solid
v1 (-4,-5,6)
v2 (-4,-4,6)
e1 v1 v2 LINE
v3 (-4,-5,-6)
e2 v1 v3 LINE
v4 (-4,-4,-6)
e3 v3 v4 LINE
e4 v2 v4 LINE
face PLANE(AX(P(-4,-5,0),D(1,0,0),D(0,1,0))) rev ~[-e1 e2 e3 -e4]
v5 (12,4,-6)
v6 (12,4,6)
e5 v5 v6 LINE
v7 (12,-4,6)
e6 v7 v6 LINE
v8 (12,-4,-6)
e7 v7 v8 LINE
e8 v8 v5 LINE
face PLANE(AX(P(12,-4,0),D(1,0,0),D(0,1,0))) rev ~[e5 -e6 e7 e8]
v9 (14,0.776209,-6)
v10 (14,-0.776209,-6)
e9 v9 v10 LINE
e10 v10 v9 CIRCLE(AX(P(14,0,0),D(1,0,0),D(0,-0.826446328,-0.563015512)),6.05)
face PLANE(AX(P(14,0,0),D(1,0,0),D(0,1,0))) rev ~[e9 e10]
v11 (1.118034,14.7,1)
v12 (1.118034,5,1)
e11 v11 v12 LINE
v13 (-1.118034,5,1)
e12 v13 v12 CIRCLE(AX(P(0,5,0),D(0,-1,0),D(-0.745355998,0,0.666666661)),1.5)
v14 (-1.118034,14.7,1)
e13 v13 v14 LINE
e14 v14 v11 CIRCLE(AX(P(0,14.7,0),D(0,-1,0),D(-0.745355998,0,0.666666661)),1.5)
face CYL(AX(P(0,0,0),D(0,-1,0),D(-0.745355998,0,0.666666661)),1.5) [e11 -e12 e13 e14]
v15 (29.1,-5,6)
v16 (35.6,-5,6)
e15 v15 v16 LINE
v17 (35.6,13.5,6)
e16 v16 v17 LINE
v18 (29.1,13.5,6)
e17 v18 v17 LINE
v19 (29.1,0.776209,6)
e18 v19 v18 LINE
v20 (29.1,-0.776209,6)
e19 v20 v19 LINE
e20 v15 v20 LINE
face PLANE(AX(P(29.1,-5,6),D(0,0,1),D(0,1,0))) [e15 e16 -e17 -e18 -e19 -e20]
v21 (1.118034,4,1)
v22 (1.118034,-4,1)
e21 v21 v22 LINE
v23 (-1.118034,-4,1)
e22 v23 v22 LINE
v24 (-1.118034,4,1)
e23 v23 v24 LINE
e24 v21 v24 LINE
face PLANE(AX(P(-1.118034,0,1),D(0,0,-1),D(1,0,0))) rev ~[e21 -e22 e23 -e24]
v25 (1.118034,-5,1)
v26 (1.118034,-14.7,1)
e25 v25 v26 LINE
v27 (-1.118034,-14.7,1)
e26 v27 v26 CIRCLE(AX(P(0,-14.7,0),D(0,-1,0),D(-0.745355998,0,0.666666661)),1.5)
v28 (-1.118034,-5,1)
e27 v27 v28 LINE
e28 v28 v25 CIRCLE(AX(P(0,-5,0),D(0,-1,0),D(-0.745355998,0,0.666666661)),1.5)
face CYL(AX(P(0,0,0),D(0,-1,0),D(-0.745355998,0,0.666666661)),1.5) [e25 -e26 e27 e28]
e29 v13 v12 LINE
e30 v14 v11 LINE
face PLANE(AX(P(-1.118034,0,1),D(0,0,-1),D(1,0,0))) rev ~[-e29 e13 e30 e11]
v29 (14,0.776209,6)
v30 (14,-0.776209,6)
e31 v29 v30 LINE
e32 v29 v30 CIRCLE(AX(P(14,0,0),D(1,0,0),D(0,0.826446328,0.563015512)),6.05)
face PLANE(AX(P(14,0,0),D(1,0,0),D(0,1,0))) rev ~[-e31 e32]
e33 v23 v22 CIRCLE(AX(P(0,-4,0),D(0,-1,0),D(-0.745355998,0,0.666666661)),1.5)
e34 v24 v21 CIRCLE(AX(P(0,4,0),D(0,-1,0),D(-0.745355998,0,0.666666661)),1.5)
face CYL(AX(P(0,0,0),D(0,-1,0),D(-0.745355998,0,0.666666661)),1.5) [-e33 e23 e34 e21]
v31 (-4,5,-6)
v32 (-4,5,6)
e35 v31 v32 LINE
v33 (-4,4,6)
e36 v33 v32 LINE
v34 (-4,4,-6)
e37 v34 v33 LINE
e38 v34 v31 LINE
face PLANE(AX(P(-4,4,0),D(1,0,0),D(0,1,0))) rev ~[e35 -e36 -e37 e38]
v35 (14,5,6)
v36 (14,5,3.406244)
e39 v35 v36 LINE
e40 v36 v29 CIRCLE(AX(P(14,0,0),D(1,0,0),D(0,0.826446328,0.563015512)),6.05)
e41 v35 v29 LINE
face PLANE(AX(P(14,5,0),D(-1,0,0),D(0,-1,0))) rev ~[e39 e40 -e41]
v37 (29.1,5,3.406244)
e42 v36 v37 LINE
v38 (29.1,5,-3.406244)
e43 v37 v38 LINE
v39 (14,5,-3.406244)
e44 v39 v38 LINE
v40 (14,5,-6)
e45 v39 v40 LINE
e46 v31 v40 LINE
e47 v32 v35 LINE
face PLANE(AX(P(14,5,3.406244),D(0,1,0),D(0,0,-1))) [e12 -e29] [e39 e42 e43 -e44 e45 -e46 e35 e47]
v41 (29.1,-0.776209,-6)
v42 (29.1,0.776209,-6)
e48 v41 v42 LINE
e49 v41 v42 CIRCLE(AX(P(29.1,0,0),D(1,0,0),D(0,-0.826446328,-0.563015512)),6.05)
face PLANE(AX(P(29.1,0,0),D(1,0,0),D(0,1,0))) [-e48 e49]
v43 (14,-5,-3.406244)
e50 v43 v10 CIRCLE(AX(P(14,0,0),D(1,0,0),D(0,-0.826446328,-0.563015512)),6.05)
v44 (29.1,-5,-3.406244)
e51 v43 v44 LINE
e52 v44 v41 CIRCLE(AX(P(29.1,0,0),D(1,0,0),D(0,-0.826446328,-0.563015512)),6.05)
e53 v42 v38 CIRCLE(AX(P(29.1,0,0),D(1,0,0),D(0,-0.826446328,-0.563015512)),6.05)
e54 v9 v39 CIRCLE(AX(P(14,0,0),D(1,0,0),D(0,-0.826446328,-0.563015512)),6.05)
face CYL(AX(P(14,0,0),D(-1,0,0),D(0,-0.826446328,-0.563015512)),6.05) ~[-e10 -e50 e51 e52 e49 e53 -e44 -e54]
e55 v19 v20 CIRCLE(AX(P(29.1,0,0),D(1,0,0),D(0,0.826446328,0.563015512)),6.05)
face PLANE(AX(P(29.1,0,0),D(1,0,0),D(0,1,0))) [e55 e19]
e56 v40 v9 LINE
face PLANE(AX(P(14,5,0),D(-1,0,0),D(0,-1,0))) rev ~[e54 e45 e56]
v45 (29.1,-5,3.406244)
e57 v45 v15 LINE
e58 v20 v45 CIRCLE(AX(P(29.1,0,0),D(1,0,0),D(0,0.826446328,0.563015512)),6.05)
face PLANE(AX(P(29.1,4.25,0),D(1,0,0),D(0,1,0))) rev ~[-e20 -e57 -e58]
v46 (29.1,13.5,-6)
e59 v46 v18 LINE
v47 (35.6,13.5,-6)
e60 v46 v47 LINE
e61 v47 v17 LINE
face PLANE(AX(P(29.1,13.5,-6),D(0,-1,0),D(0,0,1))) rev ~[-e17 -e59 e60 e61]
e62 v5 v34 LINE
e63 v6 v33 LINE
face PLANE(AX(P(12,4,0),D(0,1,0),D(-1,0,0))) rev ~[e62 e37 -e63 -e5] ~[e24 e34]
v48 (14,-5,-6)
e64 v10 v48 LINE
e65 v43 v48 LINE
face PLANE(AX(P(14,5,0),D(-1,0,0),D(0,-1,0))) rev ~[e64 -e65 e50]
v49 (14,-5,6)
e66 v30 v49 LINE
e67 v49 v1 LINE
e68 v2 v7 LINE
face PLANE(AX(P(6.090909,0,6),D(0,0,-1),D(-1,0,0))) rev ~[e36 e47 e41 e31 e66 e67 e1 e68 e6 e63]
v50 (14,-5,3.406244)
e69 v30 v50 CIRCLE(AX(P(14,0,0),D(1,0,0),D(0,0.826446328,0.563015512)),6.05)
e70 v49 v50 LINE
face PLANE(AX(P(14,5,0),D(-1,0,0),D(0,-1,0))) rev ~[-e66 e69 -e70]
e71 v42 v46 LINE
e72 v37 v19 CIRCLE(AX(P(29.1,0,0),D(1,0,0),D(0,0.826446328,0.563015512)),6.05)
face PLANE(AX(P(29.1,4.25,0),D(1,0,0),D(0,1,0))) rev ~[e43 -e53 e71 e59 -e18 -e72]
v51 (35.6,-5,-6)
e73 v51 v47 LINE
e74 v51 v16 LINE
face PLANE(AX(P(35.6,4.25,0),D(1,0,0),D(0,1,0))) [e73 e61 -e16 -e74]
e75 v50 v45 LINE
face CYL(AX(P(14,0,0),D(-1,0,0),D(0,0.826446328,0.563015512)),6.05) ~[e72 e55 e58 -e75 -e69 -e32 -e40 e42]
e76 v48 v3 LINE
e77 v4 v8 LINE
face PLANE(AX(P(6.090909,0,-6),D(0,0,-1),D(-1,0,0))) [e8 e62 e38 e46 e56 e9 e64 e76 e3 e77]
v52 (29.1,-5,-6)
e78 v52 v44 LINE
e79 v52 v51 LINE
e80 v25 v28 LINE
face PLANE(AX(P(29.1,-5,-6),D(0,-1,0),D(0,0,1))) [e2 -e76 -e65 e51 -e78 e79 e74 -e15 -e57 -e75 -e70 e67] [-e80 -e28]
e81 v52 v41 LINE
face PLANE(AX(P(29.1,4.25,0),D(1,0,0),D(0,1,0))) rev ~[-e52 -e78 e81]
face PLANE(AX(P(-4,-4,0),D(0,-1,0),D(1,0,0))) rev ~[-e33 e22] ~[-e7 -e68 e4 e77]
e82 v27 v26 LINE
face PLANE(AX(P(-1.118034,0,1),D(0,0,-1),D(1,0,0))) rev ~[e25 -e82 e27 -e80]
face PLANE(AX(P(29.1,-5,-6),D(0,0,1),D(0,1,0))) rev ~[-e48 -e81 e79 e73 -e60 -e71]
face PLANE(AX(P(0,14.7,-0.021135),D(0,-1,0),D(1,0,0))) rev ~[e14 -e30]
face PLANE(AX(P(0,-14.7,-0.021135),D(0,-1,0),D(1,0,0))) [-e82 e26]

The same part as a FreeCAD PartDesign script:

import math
import FreeCAD as App
import Part
import Sketcher
from FreeCAD import Vector


def add_polygon(sketch, points):
    """Adds a closed chain of lines whose ends are joined by coincident constraints."""
    first, n = sketch.GeometryCount, len(points)
    for a, b in zip(points, points[1:] + points[:1]):
        sketch.addGeometry(Part.LineSegment(App.Vector(*a, 0), App.Vector(*b, 0)), False)
    for i in range(n):
        sketch.addConstraint(Sketcher.Constraint("Coincident", first + i, 2, first + (i + 1) % n, 1))

doc = App.newDocument("Part")
params = doc.addObject("Spreadsheet::Sheet", "Params")
for row, (alias, value) in enumerate([
    ("sketch1_width", "18 mm"),
    ("sketch1_width2", "16 mm"),
    ("sketch1_height", "1 mm"),
    ("sketch1_height2", "8 mm"),
    ("pad1_length", "12 mm"),
    ("sketch2_radius", "1.5 mm"),
    ("pad2_length", "29.4 mm"),
    ("sketch3_radius", "6.05 mm"),
    ("pad3_length", "15.1 mm"),
    ("sketch4_height", "12 mm"),
    ("sketch4_width", "18.5 mm"),
    ("pad4_length", "6.5 mm"),
], start=1):
    params.set(f"A{row}", alias)
    params.set(f"B{row}", "=" + value)
    params.setAlias(f"B{row}", alias)

body = doc.addObject("PartDesign::Body", "Body")

sketch1 = body.newObject("Sketcher::SketchObject", "Sketch")
sketch1.AttachmentSupport = (doc.getObject("XY_Plane"), [""])
sketch1.MapMode = "FlatFace"
add_polygon(sketch1, [(14, 5), (-4, 5), (-4, 4), (12, 4), (12, -4), (-4, -4), (-4, -5), (14, -5)])
sketch1.addConstraint([
    Sketcher.Constraint("Horizontal", 0),
    Sketcher.Constraint("Vertical", 1),
    Sketcher.Constraint("Horizontal", 2),
    Sketcher.Constraint("Vertical", 3),
    Sketcher.Constraint("Horizontal", 4),
    Sketcher.Constraint("Vertical", 5),
    Sketcher.Constraint("Horizontal", 6),
    Sketcher.Constraint("Vertical", 7),
    Sketcher.Constraint("Symmetric", 1, 2, 4, 2, -1),
    Sketcher.Constraint("Equal", 1, 5),
    Sketcher.Constraint("DistanceX", 0, 2, 0, 1, 18.0),
    Sketcher.Constraint("DistanceX", 2, 1, 2, 2, 16.0),
    Sketcher.Constraint("DistanceY", 1, 2, 1, 1, 1.0),
    Sketcher.Constraint("DistanceY", 3, 2, 3, 1, 8.0),
    Sketcher.Constraint("DistanceX", 0, 2, -1, 1, 4.0),
])
sketch1.setExpression("Constraints[18]", "Params.sketch1_width")
sketch1.setExpression("Constraints[19]", "Params.sketch1_width2")
sketch1.setExpression("Constraints[20]", "Params.sketch1_height")
sketch1.setExpression("Constraints[21]", "Params.sketch1_height2")
pad1 = body.newObject("PartDesign::Pad", "Pad")
pad1.Profile = sketch1
pad1.setExpression("Length", "Params.pad1_length")
pad1.Midplane = True

sketch2 = body.newObject("Sketcher::SketchObject", "Sketch001")
sketch2.AttachmentSupport = (doc.getObject("XZ_Plane"), [""])
sketch2.MapMode = "FlatFace"
sketch2.addGeometry([
    Part.ArcOfCircle(Part.Circle(Vector(0, 0, 0), Vector(0, 0, 1), 1.5), math.radians(138), math.radians(402)),
    Part.LineSegment(Vector(1.1, 1, 0), Vector(-1.1, 1, 0)),
], False)
sketch2.addConstraint([
    Sketcher.Constraint("Coincident", 0, 1, 1, 2),
    Sketcher.Constraint("Coincident", 1, 1, 0, 2),
    Sketcher.Constraint("Horizontal", 1),
    Sketcher.Constraint("Coincident", 0, 3, -1, 1),
    Sketcher.Constraint("Radius", 0, 1.5),
    Sketcher.Constraint("DistanceY", -1, 1, 0, 1, 1.0),
])
sketch2.setExpression("Constraints[4]", "Params.sketch2_radius")
pad2 = body.newObject("PartDesign::Pad", "Pad001")
pad2.Profile = sketch2
pad2.setExpression("Length", "Params.pad2_length")
pad2.Midplane = True

sketch3 = body.newObject("Sketcher::SketchObject", "Sketch002")
sketch3.AttachmentSupport = (doc.getObject("YZ_Plane"), [""])
sketch3.MapMode = "FlatFace"
sketch3.AttachmentOffset = App.Placement(Vector(0, 0, 14), App.Rotation())
sketch3.addGeometry([
    Part.ArcOfCircle(Part.Circle(Vector(0, 0, 0), Vector(0, 0, 1), 6), math.radians(34), math.radians(146)),
    Part.LineSegment(Vector(-5, 3, 0), Vector(-5, -3, 0)),
    Part.ArcOfCircle(Part.Circle(Vector(0, 0, 0), Vector(0, 0, 1), 6), math.radians(-146), math.radians(-34)),
    Part.LineSegment(Vector(5, -3, 0), Vector(5, 3, 0)),
], False)
sketch3.addConstraint([
    Sketcher.Constraint("Coincident", 0, 2, 1, 1),
    Sketcher.Constraint("Coincident", 1, 2, 2, 1),
    Sketcher.Constraint("Coincident", 2, 2, 3, 1),
    Sketcher.Constraint("Coincident", 3, 2, 0, 1),
    Sketcher.Constraint("Vertical", 1),
    Sketcher.Constraint("Vertical", 3),
    Sketcher.Constraint("Coincident", 0, 3, -1, 1),
    Sketcher.Constraint("Coincident", 2, 3, -1, 1),
    Sketcher.Constraint("Equal", 0, 2),
    Sketcher.Constraint("Horizontal", 1, 2, 2, 2),
    Sketcher.Constraint("Radius", 0, 6.05),
    Sketcher.Constraint("DistanceX", 0, 2, -1, 1, 5.0),
])
sketch3.setExpression("Constraints[10]", "Params.sketch3_radius")
pad3 = body.newObject("PartDesign::Pad", "Pad002")
pad3.Profile = sketch3
pad3.setExpression("Length", "Params.pad3_length")

sketch4 = body.newObject("Sketcher::SketchObject", "Sketch003")
sketch4.AttachmentSupport = (doc.getObject("YZ_Plane"), [""])
sketch4.MapMode = "FlatFace"
sketch4.AttachmentOffset = App.Placement(Vector(0, 0, 29.1), App.Rotation())
add_polygon(sketch4, [(-5, 6), (-5, -6), (14, -6), (14, 6)])
sketch4.addConstraint([
    Sketcher.Constraint("Vertical", 0),
    Sketcher.Constraint("Horizontal", 1),
    Sketcher.Constraint("Vertical", 2),
    Sketcher.Constraint("Horizontal", 3),
    Sketcher.Constraint("DistanceY", 0, 2, 0, 1, 12.0),
    Sketcher.Constraint("DistanceX", 1, 1, 1, 2, 18.5),
    Sketcher.Constraint("DistanceX", 0, 2, -1, 1, 5.0),
    Sketcher.Constraint("DistanceY", 0, 2, -1, 1, 6.0),
])
sketch4.setExpression("Constraints[8]", "Params.sketch4_height")
sketch4.setExpression("Constraints[9]", "Params.sketch4_width")
pad4 = body.newObject("PartDesign::Pad", "Pad003")
pad4.Profile = sketch4
pad4.setExpression("Length", "Params.pad4_length")

doc.recompute()
